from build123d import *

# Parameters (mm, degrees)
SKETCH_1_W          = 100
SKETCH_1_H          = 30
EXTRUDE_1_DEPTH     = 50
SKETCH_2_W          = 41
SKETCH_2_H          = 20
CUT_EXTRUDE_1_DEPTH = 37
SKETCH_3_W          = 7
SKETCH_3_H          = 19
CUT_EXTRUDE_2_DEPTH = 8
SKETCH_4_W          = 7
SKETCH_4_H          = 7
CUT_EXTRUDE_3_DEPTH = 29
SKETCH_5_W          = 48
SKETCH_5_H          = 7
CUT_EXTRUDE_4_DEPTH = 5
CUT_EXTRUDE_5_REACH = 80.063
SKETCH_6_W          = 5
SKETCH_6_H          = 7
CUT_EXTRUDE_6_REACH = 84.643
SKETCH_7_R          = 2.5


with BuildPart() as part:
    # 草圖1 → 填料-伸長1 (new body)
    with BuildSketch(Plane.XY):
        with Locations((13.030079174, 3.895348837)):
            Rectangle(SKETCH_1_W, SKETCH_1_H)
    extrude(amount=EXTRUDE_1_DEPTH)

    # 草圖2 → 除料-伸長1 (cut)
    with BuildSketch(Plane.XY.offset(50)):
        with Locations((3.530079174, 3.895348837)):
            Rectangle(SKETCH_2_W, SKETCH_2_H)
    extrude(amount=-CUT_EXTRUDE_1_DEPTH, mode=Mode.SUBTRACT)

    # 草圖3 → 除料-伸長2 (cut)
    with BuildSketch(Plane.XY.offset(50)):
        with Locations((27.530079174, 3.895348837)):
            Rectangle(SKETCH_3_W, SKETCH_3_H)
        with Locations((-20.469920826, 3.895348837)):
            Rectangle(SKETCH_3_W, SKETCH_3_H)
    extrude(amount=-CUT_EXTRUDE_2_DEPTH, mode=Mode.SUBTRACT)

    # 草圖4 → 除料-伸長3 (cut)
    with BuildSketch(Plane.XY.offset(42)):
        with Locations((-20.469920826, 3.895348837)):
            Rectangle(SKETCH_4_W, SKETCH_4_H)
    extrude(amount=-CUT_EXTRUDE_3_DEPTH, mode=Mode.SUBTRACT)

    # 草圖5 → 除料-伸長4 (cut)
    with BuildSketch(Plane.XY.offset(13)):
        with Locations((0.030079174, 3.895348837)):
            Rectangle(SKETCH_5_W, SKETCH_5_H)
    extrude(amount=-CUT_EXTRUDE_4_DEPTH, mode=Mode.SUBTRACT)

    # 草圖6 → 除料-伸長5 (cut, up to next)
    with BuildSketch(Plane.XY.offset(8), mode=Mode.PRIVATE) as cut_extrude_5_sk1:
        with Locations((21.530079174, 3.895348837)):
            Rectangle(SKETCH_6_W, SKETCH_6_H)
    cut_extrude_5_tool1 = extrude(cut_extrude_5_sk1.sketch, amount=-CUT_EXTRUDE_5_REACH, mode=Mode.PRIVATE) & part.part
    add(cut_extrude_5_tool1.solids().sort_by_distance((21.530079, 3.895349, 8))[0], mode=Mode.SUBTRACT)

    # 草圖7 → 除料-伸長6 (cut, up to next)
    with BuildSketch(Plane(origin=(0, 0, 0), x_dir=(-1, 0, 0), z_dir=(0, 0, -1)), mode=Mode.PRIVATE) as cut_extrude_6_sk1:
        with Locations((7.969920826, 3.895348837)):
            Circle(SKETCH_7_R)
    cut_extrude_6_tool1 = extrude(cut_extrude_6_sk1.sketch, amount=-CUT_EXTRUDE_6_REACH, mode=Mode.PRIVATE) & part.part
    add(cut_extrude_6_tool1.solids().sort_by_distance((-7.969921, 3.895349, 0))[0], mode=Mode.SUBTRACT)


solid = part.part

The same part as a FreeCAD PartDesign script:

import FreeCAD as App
import Part
import Sketcher


def add_polygon(sketch, points):
    """Adds a closed chain of lines whose ends are joined by coincident constraints."""
    first, n = sketch.GeometryCount, len(points)
    for a, b in zip(points, points[1:] + points[:1]):
        sketch.addGeometry(Part.LineSegment(App.Vector(*a, 0), App.Vector(*b, 0)), False)
    for i in range(n):
        sketch.addConstraint(Sketcher.Constraint("Coincident", first + i, 2, first + (i + 1) % n, 1))

doc = App.newDocument("Part")
body = doc.addObject("PartDesign::Body", "Body")

sketch1 = body.newObject("Sketcher::SketchObject", "Sketch")
sketch1.AttachmentSupport = (doc.getObject("XY_Plane"), [""])
sketch1.MapMode = "FlatFace"
add_polygon(sketch1, [(-37, 19), (-37, -11), (63, -11), (63, 19)])
sketch1.addConstraint([
    Sketcher.Constraint("Vertical", 0),
    Sketcher.Constraint("Horizontal", 1),
    Sketcher.Constraint("Vertical", 2),
    Sketcher.Constraint("Horizontal", 3),
    Sketcher.Constraint("DistanceX", 1, 1, 1, 2, 100.0),
    Sketcher.Constraint("DistanceY", 0, 2, 0, 1, 30.0),
    Sketcher.Constraint("DistanceX", 0, 2, -1, 1, 36.969921),
    Sketcher.Constraint("DistanceY", 0, 2, -1, 1, 11.104651),
])
pad1 = body.newObject("PartDesign::Pad", "Pad")
pad1.Profile = sketch1
pad1.Length = 50

sketch2 = body.newObject("Sketcher::SketchObject", "Sketch001")
sketch2.AttachmentSupport = (doc.getObject("XY_Plane"), [""])
sketch2.MapMode = "FlatFace"
sketch2.AttachmentOffset = App.Placement(App.Vector(0, 0, 50), App.Rotation())
add_polygon(sketch2, [(-17, 14), (-17, -6), (24, -6), (24, 14)])
sketch2.addConstraint([
    Sketcher.Constraint("Vertical", 0),
    Sketcher.Constraint("Horizontal", 1),
    Sketcher.Constraint("Vertical", 2),
    Sketcher.Constraint("Horizontal", 3),
    Sketcher.Constraint("DistanceX", 1, 1, 1, 2, 41.0),
    Sketcher.Constraint("DistanceY", 0, 2, 0, 1, 20.0),
    Sketcher.Constraint("DistanceX", 0, 2, -1, 1, 16.969921),
    Sketcher.Constraint("DistanceY", 0, 2, -1, 1, 6.104651),
])
pocket1 = body.newObject("PartDesign::Pocket", "Pocket")
pocket1.Profile = sketch2
pocket1.Length = 37

sketch3 = body.newObject("Sketcher::SketchObject", "Sketch002")
sketch3.AttachmentSupport = (doc.getObject("XY_Plane"), [""])
sketch3.MapMode = "FlatFace"
sketch3.AttachmentOffset = App.Placement(App.Vector(0, 0, 50), App.Rotation())
add_polygon(sketch3, [(24, 13), (24, -6), (31, -6), (31, 13)])
add_polygon(sketch3, [(-24, 13), (-24, -6), (-17, -6), (-17, 13)])
sketch3.addConstraint([
    Sketcher.Constraint("Vertical", 0),
    Sketcher.Constraint("Horizontal", 1),
    Sketcher.Constraint("Vertical", 2),
    Sketcher.Constraint("Horizontal", 3),
    Sketcher.Constraint("Vertical", 4),
    Sketcher.Constraint("Horizontal", 5),
    Sketcher.Constraint("Vertical", 6),
    Sketcher.Constraint("Horizontal", 7),
    Sketcher.Constraint("Horizontal", 1, 2, 4, 2),
    Sketcher.Constraint("Horizontal", 3, 2, 6, 2),
    Sketcher.Constraint("Equal", 3, 5),
    Sketcher.Constraint("DistanceX", 1, 1, 1, 2, 7.0),
    Sketcher.Constraint("DistanceY", 0, 2, 0, 1, 19.0),
    Sketcher.Constraint("DistanceX", 4, 2, 0, 2, 48.0),
    Sketcher.Constraint("DistanceX", -1, 1, 0, 2, 24.030079),
    Sketcher.Constraint("DistanceY", 0, 2, -1, 1, 5.604651),
])
pocket2 = body.newObject("PartDesign::Pocket", "Pocket001")
pocket2.Profile = sketch3
pocket2.Length = 8

sketch4 = body.newObject("Sketcher::SketchObject", "Sketch003")
sketch4.AttachmentSupport = (doc.getObject("XY_Plane"), [""])
sketch4.MapMode = "FlatFace"
sketch4.AttachmentOffset = App.Placement(App.Vector(0, 0, 42), App.Rotation())
add_polygon(sketch4, [(-24, 7), (-24, 0), (-17, 0), (-17, 7)])
sketch4.addConstraint([
    Sketcher.Constraint("Vertical", 0),
    Sketcher.Constraint("Horizontal", 1),
    Sketcher.Constraint("Vertical", 2),
    Sketcher.Constraint("Horizontal", 3),
    Sketcher.Constraint("Equal", 3, 0),
    Sketcher.Constraint("DistanceX", 1, 1, 1, 2, 7.0),
    Sketcher.Constraint("DistanceX", 0, 2, -1, 1, 23.969921),
    Sketcher.Constraint("DistanceY", -1, 1, 0, 2, 0.395349),
])
pocket3 = body.newObject("PartDesign::Pocket", "Pocket002")
pocket3.Profile = sketch4
pocket3.Length = 29

sketch5 = body.newObject("Sketcher::SketchObject", "Sketch004")
sketch5.AttachmentSupport = (doc.getObject("XY_Plane"), [""])
sketch5.MapMode = "FlatFace"
sketch5.AttachmentOffset = App.Placement(App.Vector(0, 0, 13), App.Rotation())
add_polygon(sketch5, [(-24, 7), (-24, 0), (24, 0), (24, 7)])
sketch5.addConstraint([
    Sketcher.Constraint("Vertical", 0),
    Sketcher.Constraint("Horizontal", 1),
    Sketcher.Constraint("Vertical", 2),
    Sketcher.Constraint("Horizontal", 3),
    Sketcher.Constraint("DistanceX", 1, 1, 1, 2, 48.0),
    Sketcher.Constraint("DistanceY", 0, 2, 0, 1, 7.0),
    Sketcher.Constraint("DistanceX", 0, 2, -1, 1, 23.969921),
    Sketcher.Constraint("DistanceY", -1, 1, 0, 2, 0.395349),
])
pocket4 = body.newObject("PartDesign::Pocket", "Pocket003")
pocket4.Profile = sketch5
pocket4.Length = 5

sketch6 = body.newObject("Sketcher::SketchObject", "Sketch005")
sketch6.AttachmentSupport = (doc.getObject("XY_Plane"), [""])
sketch6.MapMode = "FlatFace"
sketch6.AttachmentOffset = App.Placement(App.Vector(0, 0, 8), App.Rotation())
add_polygon(sketch6, [(19, 7), (19, 0), (24, 0), (24, 7)])
sketch6.addConstraint([
    Sketcher.Constraint("Vertical", 0),
    Sketcher.Constraint("Horizontal", 1),
    Sketcher.Constraint("Vertical", 2),
    Sketcher.Constraint("Horizontal", 3),
    Sketcher.Constraint("DistanceX", 1, 1, 1, 2, 5.0),
    Sketcher.Constraint("DistanceY", 0, 2, 0, 1, 7.0),
    Sketcher.Constraint("DistanceX", -1, 1, 0, 2, 19.030079),
    Sketcher.Constraint("DistanceY", -1, 1, 0, 2, 0.395349),
])
pocket5 = body.newObject("PartDesign::Pocket", "Pocket004")
pocket5.Profile = sketch6
pocket5.Type = "UpToFirst"

sketch7 = body.newObject("Sketcher::SketchObject", "Sketch006")
sketch7.AttachmentSupport = (doc.getObject("XY_Plane"), [""])
sketch7.MapMode = "FlatFace"
sketch7.addGeometry(Part.Circle(App.Vector(-8, 3.9, 0), App.Vector(0, 0, 1), 2.5), False)
sketch7.addConstraint([
    Sketcher.Constraint("Diameter", 0, 5.0),
    Sketcher.Constraint("DistanceX", 0, 3, -1, 1, 7.969921),
    Sketcher.Constraint("DistanceY", -1, 1, 0, 3, 3.895349),
])
pocket6 = body.newObject("PartDesign::Pocket", "Pocket005")
pocket6.Profile = sketch7
pocket6.Type = "UpToFirst"
pocket6.Reversed = True

doc.recompute()
